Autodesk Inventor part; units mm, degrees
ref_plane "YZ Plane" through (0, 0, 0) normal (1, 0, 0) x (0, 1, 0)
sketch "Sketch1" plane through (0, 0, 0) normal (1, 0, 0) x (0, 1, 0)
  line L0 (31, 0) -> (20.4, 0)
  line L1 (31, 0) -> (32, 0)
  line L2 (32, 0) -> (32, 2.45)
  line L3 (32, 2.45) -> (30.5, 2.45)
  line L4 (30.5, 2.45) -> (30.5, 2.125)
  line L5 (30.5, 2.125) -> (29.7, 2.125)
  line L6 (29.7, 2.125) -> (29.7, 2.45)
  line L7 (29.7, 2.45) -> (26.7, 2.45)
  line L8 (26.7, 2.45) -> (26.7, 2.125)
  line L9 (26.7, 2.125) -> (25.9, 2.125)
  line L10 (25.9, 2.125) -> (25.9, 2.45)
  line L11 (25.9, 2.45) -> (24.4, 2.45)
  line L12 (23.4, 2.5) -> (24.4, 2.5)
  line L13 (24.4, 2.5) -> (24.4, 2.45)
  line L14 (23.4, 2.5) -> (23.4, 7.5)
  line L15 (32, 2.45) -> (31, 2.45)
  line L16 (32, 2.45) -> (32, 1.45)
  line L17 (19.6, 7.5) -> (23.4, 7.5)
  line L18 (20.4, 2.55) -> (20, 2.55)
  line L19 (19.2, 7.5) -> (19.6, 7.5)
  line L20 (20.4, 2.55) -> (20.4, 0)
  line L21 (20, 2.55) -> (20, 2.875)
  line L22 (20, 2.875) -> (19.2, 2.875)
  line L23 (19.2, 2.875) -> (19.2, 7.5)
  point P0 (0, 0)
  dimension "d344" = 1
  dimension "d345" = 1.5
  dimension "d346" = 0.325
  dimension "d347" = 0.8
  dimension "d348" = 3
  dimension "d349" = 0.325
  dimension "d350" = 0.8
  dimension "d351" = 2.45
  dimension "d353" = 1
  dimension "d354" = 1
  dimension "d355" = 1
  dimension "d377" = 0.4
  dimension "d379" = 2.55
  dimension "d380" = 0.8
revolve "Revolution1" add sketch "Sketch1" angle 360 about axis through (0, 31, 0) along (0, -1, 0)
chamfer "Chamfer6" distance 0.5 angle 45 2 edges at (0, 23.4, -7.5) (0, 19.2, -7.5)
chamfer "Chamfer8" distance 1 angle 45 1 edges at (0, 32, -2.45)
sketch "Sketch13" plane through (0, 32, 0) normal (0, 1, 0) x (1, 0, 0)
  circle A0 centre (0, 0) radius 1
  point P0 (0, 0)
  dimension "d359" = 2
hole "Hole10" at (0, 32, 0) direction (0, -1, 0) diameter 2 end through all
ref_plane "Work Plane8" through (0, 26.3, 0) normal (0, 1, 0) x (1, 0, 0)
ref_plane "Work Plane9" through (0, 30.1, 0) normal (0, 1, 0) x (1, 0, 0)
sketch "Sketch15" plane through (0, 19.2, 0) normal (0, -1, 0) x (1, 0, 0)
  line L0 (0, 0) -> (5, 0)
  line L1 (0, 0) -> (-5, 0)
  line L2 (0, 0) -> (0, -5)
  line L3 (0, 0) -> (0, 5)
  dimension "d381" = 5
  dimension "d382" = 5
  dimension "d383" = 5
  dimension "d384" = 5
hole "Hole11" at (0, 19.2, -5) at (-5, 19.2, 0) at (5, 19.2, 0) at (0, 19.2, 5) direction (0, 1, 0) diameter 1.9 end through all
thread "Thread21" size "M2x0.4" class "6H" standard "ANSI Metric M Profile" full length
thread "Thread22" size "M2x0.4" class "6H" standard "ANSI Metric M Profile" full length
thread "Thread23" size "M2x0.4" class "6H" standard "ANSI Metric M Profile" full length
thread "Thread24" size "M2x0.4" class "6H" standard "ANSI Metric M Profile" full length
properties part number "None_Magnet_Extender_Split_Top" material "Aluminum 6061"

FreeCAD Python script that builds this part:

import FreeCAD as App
import Part
import Sketcher

V = App.Vector


def edges_at(feature, points):
    """Names of the edges that pass closest to the given points."""
    edges = feature.Shape.Edges
    near = lambda p: min(range(len(edges)), key=lambda i: edges[i].distToShape(Part.Vertex(*p))[0])
    return sorted({f"Edge{near(p) + 1}" for p in points})


def add_polygon(sketch, points):
    """Adds a closed chain of lines whose ends are joined by coincident constraints."""
    first, n = sketch.GeometryCount, len(points)
    for a, b in zip(points, points[1:] + points[:1]):
        sketch.addGeometry(Part.LineSegment(App.Vector(*a, 0), App.Vector(*b, 0)), False)
    for i in range(n):
        sketch.addConstraint(Sketcher.Constraint("Coincident", first + i, 2, first + (i + 1) % n, 1))

doc = App.newDocument("Part")
body = doc.addObject("PartDesign::Body", "Body")

# Sketch on YZ plane
sketch1 = body.newObject("Sketcher::SketchObject", "Sketch")
sketch1.AttachmentSupport = (doc.getObject("YZ_Plane"), [""])
sketch1.MapMode = "FlatFace"
add_polygon(sketch1, [(20.4, 0), (32, 0), (32, 2.45), (30.5, 2.45), (30.5, 2.125), (29.7, 2.125), (29.7, 2.45), (26.7, 2.45), (26.7, 2.125), (25.9, 2.125), (25.9, 2.45), (24.4, 2.45), (24.4, 2.5), (23.4, 2.5), (23.4, 7.5), (19.2, 7.5), (19.2, 2.875), (20, 2.875), (20, 2.55), (20.4, 2.55)])  # lines 0-19
sketch1.addConstraint([
    Sketcher.Constraint("Horizontal", 0),
    Sketcher.Constraint("Vertical", 1),
    Sketcher.Constraint("Horizontal", 2),
    Sketcher.Constraint("Vertical", 3),
    Sketcher.Constraint("Horizontal", 4),
    Sketcher.Constraint("Vertical", 5),
    Sketcher.Constraint("Horizontal", 6),
    Sketcher.Constraint("Vertical", 7),
    Sketcher.Constraint("Horizontal", 8),
    Sketcher.Constraint("Vertical", 9),
    Sketcher.Constraint("Horizontal", 10),
    Sketcher.Constraint("Vertical", 11),
    Sketcher.Constraint("Horizontal", 12),
    Sketcher.Constraint("Vertical", 13),
    Sketcher.Constraint("Horizontal", 14),
    Sketcher.Constraint("Vertical", 15),
    Sketcher.Constraint("Horizontal", 16),
    Sketcher.Constraint("Vertical", 17),
    Sketcher.Constraint("Horizontal", 18),
    Sketcher.Constraint("Vertical", 19),
    Sketcher.Constraint("PointOnObject", 0, 2, -1),
    Sketcher.Constraint("Horizontal", 2, 2, 5, 2),
    Sketcher.Constraint("Horizontal", 4, 2, 7, 2),
    Sketcher.Constraint("Horizontal", 6, 2, 9, 2),
    Sketcher.Constraint("Equal", 4, 8),
    Sketcher.Constraint("Equal", 2, 10),
    Sketcher.Constraint("Equal", 8, 16),
    Sketcher.Constraint("Equal", 9, 17),
    Sketcher.Constraint("DistanceX", 6, 2, 6, 1, 3.0),
    Sketcher.Constraint("DistanceX", 12, 2, 12, 1, 1.0),
    Sketcher.Constraint("DistanceX", 2, 2, 2, 1, 1.5),
    Sketcher.Constraint("DistanceX", 4, 2, 4, 1, 0.8),
    Sketcher.Constraint("DistanceX", 18, 1, 18, 2, 0.4),
    Sketcher.Constraint("DistanceX", 18, 2, 12, 2, 3.0),
    Sketcher.Constraint("DistanceY", 1, 1, 1, 2, 2.45),
    Sketcher.Constraint("DistanceY", 19, 2, 19, 1, 2.55),
    Sketcher.Constraint("DistanceY", 3, 2, 3, 1, 0.325),
    Sketcher.Constraint("DistanceY", 13, 1, 13, 2, 5.0),
    Sketcher.Constraint("DistanceX", -1, 1, 0, 2, 32.0),
    Sketcher.Constraint("DistanceY", 11, 1, 11, 2, 0.05),
])
revolution = body.newObject("PartDesign::Revolution", "Revolution")
revolution.Profile = sketch1
revolution.ReferenceAxis = (sketch1, ["H_Axis"])
revolution.Angle = 360
doc.recompute()

chamfer = body.newObject("PartDesign::Chamfer", "Chamfer")
chamfer.Base = (revolution, edges_at(revolution, [(0, 23.4, -7.5), (0, 19.2, -7.5)]))
chamfer.Size = 0.5
doc.recompute()

chamfer2 = body.newObject("PartDesign::Chamfer", "Chamfer001")
chamfer2.Base = (chamfer, edges_at(chamfer, [(0, 32, -2.45)]))
chamfer2.Size = 1

# Sketch on XZ plane
sketch2 = body.newObject("Sketcher::SketchObject", "Sketch001")
sketch2.AttachmentSupport = (doc.getObject("XZ_Plane"), [""])
sketch2.MapMode = "FlatFace"
sketch2.AttachmentOffset = App.Placement(V(0, 0, -32), App.Rotation())
sketch2.addGeometry(Part.Circle(V(0, 0, 0), V(0, 0, 1), 1), False)
sketch2.addConstraint([
    Sketcher.Constraint("Coincident", 0, 3, -1, 1),
    Sketcher.Constraint("Diameter", 0, 2.0),
])
doc.recompute()
hole = body.newObject("PartDesign::Hole", "Hole")
hole.Profile = sketch2
hole.ThreadType = "None"
hole.Diameter = 2
hole.DepthType = "ThroughAll"
hole.Reversed = True

# Sketch on XZ plane
sketch3 = body.newObject("Sketcher::SketchObject", "Sketch002")
sketch3.AttachmentSupport = (doc.getObject("XZ_Plane"), [""])
sketch3.MapMode = "FlatFace"
sketch3.AttachmentOffset = App.Placement(V(0, 0, -19.2), App.Rotation())
sketch3.addGeometry([
    Part.Circle(V(0, -5, 0), V(0, 0, 1), 0.9),
    Part.Circle(V(-5, 0, 0), V(0, 0, 1), 0.9),
    Part.Circle(V(5, 0, 0), V(0, 0, 1), 0.9),
    Part.Circle(V(0, 5, 0), V(0, 0, 1), 0.9),
], False)
sketch3.addConstraint([
    Sketcher.Constraint("Equal", 0, 1),
    Sketcher.Constraint("Equal", 1, 2),
    Sketcher.Constraint("Equal", 2, 3),
    Sketcher.Constraint("Symmetric", 1, 3, 2, 3, -1, 1),
    Sketcher.Constraint("Symmetric", 0, 3, 3, 3, -1, 1),
    Sketcher.Constraint("PointOnObject", 0, 3, -2),
    Sketcher.Constraint("PointOnObject", 1, 3, -1),
    Sketcher.Constraint("Diameter", 0, 1.9),
    Sketcher.Constraint("DistanceY", 0, 3, -1, 1, 5.0),
    Sketcher.Constraint("DistanceX", 1, 3, -1, 1, 5.0),
])
doc.recompute()
hole2 = body.newObject("PartDesign::Hole", "Hole001")
hole2.Profile = sketch3
hole2.ThreadType = "None"
hole2.Diameter = 1.9
hole2.DepthType = "ThroughAll"

doc.recompute()
